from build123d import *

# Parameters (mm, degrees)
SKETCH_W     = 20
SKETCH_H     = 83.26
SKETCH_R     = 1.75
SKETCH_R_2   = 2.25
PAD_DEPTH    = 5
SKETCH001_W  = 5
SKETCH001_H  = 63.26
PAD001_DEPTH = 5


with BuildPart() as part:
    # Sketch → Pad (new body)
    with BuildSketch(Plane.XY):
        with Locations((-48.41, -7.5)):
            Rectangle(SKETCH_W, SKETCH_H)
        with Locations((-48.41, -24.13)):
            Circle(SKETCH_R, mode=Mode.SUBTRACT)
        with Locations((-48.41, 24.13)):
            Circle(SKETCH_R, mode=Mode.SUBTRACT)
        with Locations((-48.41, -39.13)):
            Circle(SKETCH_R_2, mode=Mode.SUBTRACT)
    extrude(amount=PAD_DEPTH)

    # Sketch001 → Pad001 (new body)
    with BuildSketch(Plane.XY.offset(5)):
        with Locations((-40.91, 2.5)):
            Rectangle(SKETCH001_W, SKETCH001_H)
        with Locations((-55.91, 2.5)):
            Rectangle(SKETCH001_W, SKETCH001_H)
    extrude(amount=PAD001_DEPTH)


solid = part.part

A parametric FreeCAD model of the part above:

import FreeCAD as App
import Part
import Sketcher

doc = App.newDocument("Part")
body = doc.addObject("PartDesign::Body", "Body")

# Sketch on XY plane
sketch1 = body.newObject("Sketcher::SketchObject", "Sketch")
sketch1.AttachmentSupport = (doc.getObject("XY_Plane"), [""])
sketch1.MapMode = "FlatFace"
sketch1.addGeometry(Part.LineSegment(App.Vector(-58.4, 34.1, 0), App.Vector(-58.4, -49.1, 0)), False)
sketch1.addGeometry(Part.LineSegment(App.Vector(-58.4, -49.1, 0), App.Vector(-38.4, -49.1, 0)), False)
sketch1.addGeometry(Part.LineSegment(App.Vector(-38.4, -49.1, 0), App.Vector(-38.4, 34.1, 0)), False)
sketch1.addGeometry(Part.LineSegment(App.Vector(-38.4, 34.1, 0), App.Vector(-58.4, 34.1, 0)), False)
sketch1.addGeometry(Part.Circle(App.Vector(-48.4, -39.1, 0), App.Vector(0, 0, 1), 2.2), False)
sketch1.addGeometry(Part.Circle(App.Vector(-48.4, -24.1, 0), App.Vector(0, 0, 1), 1.8), False)
sketch1.addGeometry(Part.Circle(App.Vector(-48.4, 24.1, 0), App.Vector(0, 0, 1), 1.8), False)
sketch1.addConstraint(Sketcher.Constraint("Coincident", 0, 2, 1, 1))
sketch1.addConstraint(Sketcher.Constraint("Coincident", 1, 2, 2, 1))
sketch1.addConstraint(Sketcher.Constraint("Coincident", 2, 2, 3, 1))
sketch1.addConstraint(Sketcher.Constraint("Coincident", 3, 2, 0, 1))
sketch1.addConstraint(Sketcher.Constraint("Vertical", 0))
sketch1.addConstraint(Sketcher.Constraint("Horizontal", 1))
sketch1.addConstraint(Sketcher.Constraint("Vertical", 2))
sketch1.addConstraint(Sketcher.Constraint("Horizontal", 3))
sketch1.addConstraint(Sketcher.Constraint("Equal", 5, 6))
sketch1.addConstraint(Sketcher.Constraint("Symmetric", 5, 3, 6, 3, -1))
sketch1.addConstraint(Sketcher.Constraint("Vertical", 4, 3, 5, 3))
sketch1.addConstraint(Sketcher.Constraint("Diameter", 4, 4.5))
sketch1.addConstraint(Sketcher.Constraint("Diameter", 5, 3.5))
sketch1.addConstraint(Sketcher.Constraint("DistanceX", 1, 1, 1, 2, 20.0))
sketch1.addConstraint(Sketcher.Constraint("DistanceY", 4, 3, 5, 3, 15.0))
sketch1.addConstraint(Sketcher.Constraint("DistanceX", 0, 2, 4, 3, 10.0))
sketch1.addConstraint(Sketcher.Constraint("DistanceY", 0, 2, 4, 3, 10.0))
sketch1.addConstraint(Sketcher.Constraint("DistanceY", 6, 3, 2, 2, 10.0))
sketch1.addConstraint(Sketcher.Constraint("DistanceY", 0, 2, 0, 1, 83.26))
sketch1.addConstraint(Sketcher.Constraint("DistanceX", 4, 3, -1, 1, 48.41))
pad1 = body.newObject("PartDesign::Pad", "Pad")
pad1.Profile = sketch1
pad1.Length = 5

# Sketch on XY plane
sketch2 = body.newObject("Sketcher::SketchObject", "Sketch001")
sketch2.AttachmentSupport = (doc.getObject("XY_Plane"), [""])
sketch2.MapMode = "FlatFace"
sketch2.AttachmentOffset = App.Placement(App.Vector(0, 0, 5), App.Rotation())
sketch2.addGeometry(Part.LineSegment(App.Vector(-43, 34, 0), App.Vector(-43, -29, 0)), False)
sketch2.addGeometry(Part.LineSegment(App.Vector(-43, -29, 0), App.Vector(-38, -29, 0)), False)
sketch2.addGeometry(Part.LineSegment(App.Vector(-38, -29, 0), App.Vector(-38, 34, 0)), False)
sketch2.addGeometry(Part.LineSegment(App.Vector(-38, 34, 0), App.Vector(-43, 34, 0)), False)
sketch2.addGeometry(Part.LineSegment(App.Vector(-58, 34, 0), App.Vector(-58, -29, 0)), False)
sketch2.addGeometry(Part.LineSegment(App.Vector(-58, -29, 0), App.Vector(-53, -29, 0)), False)
sketch2.addGeometry(Part.LineSegment(App.Vector(-53, -29, 0), App.Vector(-53, 34, 0)), False)
sketch2.addGeometry(Part.LineSegment(App.Vector(-53, 34, 0), App.Vector(-58, 34, 0)), False)
sketch2.addConstraint(Sketcher.Constraint("Coincident", 0, 2, 1, 1))
sketch2.addConstraint(Sketcher.Constraint("Coincident", 1, 2, 2, 1))
sketch2.addConstraint(Sketcher.Constraint("Coincident", 2, 2, 3, 1))
sketch2.addConstraint(Sketcher.Constraint("Coincident", 3, 2, 0, 1))
sketch2.addConstraint(Sketcher.Constraint("Coincident", 4, 2, 5, 1))
sketch2.addConstraint(Sketcher.Constraint("Coincident", 5, 2, 6, 1))
sketch2.addConstraint(Sketcher.Constraint("Coincident", 6, 2, 7, 1))
sketch2.addConstraint(Sketcher.Constraint("Coincident", 7, 2, 4, 1))
sketch2.addConstraint(Sketcher.Constraint("Vertical", 0))
sketch2.addConstraint(Sketcher.Constraint("Horizontal", 1))
sketch2.addConstraint(Sketcher.Constraint("Vertical", 2))
sketch2.addConstraint(Sketcher.Constraint("Horizontal", 3))
sketch2.addConstraint(Sketcher.Constraint("Vertical", 4))
sketch2.addConstraint(Sketcher.Constraint("Horizontal", 5))
sketch2.addConstraint(Sketcher.Constraint("Vertical", 6))
sketch2.addConstraint(Sketcher.Constraint("Horizontal", 7))
sketch2.addConstraint(Sketcher.Constraint("Horizontal", 1, 2, 4, 2))
sketch2.addConstraint(Sketcher.Constraint("Horizontal", 3, 2, 6, 2))
sketch2.addConstraint(Sketcher.Constraint("Equal", 3, 5))
sketch2.addConstraint(Sketcher.Constraint("DistanceX", 1, 1, 1, 2, 5.0))
sketch2.addConstraint(Sketcher.Constraint("DistanceX", 4, 2, 0, 2, 15.0))
sketch2.addConstraint(Sketcher.Constraint("DistanceY", 0, 2, 0, 1, 63.26))
sketch2.addConstraint(Sketcher.Constraint("DistanceX", 0, 2, -1, 1, 43.41))
sketch2.addConstraint(Sketcher.Constraint("DistanceY", 0, 2, -1, 1, 29.13))
pad2 = body.newObject("PartDesign::Pad", "Pad001")
pad2.Profile = sketch2
pad2.Length = 5

doc.recompute()
